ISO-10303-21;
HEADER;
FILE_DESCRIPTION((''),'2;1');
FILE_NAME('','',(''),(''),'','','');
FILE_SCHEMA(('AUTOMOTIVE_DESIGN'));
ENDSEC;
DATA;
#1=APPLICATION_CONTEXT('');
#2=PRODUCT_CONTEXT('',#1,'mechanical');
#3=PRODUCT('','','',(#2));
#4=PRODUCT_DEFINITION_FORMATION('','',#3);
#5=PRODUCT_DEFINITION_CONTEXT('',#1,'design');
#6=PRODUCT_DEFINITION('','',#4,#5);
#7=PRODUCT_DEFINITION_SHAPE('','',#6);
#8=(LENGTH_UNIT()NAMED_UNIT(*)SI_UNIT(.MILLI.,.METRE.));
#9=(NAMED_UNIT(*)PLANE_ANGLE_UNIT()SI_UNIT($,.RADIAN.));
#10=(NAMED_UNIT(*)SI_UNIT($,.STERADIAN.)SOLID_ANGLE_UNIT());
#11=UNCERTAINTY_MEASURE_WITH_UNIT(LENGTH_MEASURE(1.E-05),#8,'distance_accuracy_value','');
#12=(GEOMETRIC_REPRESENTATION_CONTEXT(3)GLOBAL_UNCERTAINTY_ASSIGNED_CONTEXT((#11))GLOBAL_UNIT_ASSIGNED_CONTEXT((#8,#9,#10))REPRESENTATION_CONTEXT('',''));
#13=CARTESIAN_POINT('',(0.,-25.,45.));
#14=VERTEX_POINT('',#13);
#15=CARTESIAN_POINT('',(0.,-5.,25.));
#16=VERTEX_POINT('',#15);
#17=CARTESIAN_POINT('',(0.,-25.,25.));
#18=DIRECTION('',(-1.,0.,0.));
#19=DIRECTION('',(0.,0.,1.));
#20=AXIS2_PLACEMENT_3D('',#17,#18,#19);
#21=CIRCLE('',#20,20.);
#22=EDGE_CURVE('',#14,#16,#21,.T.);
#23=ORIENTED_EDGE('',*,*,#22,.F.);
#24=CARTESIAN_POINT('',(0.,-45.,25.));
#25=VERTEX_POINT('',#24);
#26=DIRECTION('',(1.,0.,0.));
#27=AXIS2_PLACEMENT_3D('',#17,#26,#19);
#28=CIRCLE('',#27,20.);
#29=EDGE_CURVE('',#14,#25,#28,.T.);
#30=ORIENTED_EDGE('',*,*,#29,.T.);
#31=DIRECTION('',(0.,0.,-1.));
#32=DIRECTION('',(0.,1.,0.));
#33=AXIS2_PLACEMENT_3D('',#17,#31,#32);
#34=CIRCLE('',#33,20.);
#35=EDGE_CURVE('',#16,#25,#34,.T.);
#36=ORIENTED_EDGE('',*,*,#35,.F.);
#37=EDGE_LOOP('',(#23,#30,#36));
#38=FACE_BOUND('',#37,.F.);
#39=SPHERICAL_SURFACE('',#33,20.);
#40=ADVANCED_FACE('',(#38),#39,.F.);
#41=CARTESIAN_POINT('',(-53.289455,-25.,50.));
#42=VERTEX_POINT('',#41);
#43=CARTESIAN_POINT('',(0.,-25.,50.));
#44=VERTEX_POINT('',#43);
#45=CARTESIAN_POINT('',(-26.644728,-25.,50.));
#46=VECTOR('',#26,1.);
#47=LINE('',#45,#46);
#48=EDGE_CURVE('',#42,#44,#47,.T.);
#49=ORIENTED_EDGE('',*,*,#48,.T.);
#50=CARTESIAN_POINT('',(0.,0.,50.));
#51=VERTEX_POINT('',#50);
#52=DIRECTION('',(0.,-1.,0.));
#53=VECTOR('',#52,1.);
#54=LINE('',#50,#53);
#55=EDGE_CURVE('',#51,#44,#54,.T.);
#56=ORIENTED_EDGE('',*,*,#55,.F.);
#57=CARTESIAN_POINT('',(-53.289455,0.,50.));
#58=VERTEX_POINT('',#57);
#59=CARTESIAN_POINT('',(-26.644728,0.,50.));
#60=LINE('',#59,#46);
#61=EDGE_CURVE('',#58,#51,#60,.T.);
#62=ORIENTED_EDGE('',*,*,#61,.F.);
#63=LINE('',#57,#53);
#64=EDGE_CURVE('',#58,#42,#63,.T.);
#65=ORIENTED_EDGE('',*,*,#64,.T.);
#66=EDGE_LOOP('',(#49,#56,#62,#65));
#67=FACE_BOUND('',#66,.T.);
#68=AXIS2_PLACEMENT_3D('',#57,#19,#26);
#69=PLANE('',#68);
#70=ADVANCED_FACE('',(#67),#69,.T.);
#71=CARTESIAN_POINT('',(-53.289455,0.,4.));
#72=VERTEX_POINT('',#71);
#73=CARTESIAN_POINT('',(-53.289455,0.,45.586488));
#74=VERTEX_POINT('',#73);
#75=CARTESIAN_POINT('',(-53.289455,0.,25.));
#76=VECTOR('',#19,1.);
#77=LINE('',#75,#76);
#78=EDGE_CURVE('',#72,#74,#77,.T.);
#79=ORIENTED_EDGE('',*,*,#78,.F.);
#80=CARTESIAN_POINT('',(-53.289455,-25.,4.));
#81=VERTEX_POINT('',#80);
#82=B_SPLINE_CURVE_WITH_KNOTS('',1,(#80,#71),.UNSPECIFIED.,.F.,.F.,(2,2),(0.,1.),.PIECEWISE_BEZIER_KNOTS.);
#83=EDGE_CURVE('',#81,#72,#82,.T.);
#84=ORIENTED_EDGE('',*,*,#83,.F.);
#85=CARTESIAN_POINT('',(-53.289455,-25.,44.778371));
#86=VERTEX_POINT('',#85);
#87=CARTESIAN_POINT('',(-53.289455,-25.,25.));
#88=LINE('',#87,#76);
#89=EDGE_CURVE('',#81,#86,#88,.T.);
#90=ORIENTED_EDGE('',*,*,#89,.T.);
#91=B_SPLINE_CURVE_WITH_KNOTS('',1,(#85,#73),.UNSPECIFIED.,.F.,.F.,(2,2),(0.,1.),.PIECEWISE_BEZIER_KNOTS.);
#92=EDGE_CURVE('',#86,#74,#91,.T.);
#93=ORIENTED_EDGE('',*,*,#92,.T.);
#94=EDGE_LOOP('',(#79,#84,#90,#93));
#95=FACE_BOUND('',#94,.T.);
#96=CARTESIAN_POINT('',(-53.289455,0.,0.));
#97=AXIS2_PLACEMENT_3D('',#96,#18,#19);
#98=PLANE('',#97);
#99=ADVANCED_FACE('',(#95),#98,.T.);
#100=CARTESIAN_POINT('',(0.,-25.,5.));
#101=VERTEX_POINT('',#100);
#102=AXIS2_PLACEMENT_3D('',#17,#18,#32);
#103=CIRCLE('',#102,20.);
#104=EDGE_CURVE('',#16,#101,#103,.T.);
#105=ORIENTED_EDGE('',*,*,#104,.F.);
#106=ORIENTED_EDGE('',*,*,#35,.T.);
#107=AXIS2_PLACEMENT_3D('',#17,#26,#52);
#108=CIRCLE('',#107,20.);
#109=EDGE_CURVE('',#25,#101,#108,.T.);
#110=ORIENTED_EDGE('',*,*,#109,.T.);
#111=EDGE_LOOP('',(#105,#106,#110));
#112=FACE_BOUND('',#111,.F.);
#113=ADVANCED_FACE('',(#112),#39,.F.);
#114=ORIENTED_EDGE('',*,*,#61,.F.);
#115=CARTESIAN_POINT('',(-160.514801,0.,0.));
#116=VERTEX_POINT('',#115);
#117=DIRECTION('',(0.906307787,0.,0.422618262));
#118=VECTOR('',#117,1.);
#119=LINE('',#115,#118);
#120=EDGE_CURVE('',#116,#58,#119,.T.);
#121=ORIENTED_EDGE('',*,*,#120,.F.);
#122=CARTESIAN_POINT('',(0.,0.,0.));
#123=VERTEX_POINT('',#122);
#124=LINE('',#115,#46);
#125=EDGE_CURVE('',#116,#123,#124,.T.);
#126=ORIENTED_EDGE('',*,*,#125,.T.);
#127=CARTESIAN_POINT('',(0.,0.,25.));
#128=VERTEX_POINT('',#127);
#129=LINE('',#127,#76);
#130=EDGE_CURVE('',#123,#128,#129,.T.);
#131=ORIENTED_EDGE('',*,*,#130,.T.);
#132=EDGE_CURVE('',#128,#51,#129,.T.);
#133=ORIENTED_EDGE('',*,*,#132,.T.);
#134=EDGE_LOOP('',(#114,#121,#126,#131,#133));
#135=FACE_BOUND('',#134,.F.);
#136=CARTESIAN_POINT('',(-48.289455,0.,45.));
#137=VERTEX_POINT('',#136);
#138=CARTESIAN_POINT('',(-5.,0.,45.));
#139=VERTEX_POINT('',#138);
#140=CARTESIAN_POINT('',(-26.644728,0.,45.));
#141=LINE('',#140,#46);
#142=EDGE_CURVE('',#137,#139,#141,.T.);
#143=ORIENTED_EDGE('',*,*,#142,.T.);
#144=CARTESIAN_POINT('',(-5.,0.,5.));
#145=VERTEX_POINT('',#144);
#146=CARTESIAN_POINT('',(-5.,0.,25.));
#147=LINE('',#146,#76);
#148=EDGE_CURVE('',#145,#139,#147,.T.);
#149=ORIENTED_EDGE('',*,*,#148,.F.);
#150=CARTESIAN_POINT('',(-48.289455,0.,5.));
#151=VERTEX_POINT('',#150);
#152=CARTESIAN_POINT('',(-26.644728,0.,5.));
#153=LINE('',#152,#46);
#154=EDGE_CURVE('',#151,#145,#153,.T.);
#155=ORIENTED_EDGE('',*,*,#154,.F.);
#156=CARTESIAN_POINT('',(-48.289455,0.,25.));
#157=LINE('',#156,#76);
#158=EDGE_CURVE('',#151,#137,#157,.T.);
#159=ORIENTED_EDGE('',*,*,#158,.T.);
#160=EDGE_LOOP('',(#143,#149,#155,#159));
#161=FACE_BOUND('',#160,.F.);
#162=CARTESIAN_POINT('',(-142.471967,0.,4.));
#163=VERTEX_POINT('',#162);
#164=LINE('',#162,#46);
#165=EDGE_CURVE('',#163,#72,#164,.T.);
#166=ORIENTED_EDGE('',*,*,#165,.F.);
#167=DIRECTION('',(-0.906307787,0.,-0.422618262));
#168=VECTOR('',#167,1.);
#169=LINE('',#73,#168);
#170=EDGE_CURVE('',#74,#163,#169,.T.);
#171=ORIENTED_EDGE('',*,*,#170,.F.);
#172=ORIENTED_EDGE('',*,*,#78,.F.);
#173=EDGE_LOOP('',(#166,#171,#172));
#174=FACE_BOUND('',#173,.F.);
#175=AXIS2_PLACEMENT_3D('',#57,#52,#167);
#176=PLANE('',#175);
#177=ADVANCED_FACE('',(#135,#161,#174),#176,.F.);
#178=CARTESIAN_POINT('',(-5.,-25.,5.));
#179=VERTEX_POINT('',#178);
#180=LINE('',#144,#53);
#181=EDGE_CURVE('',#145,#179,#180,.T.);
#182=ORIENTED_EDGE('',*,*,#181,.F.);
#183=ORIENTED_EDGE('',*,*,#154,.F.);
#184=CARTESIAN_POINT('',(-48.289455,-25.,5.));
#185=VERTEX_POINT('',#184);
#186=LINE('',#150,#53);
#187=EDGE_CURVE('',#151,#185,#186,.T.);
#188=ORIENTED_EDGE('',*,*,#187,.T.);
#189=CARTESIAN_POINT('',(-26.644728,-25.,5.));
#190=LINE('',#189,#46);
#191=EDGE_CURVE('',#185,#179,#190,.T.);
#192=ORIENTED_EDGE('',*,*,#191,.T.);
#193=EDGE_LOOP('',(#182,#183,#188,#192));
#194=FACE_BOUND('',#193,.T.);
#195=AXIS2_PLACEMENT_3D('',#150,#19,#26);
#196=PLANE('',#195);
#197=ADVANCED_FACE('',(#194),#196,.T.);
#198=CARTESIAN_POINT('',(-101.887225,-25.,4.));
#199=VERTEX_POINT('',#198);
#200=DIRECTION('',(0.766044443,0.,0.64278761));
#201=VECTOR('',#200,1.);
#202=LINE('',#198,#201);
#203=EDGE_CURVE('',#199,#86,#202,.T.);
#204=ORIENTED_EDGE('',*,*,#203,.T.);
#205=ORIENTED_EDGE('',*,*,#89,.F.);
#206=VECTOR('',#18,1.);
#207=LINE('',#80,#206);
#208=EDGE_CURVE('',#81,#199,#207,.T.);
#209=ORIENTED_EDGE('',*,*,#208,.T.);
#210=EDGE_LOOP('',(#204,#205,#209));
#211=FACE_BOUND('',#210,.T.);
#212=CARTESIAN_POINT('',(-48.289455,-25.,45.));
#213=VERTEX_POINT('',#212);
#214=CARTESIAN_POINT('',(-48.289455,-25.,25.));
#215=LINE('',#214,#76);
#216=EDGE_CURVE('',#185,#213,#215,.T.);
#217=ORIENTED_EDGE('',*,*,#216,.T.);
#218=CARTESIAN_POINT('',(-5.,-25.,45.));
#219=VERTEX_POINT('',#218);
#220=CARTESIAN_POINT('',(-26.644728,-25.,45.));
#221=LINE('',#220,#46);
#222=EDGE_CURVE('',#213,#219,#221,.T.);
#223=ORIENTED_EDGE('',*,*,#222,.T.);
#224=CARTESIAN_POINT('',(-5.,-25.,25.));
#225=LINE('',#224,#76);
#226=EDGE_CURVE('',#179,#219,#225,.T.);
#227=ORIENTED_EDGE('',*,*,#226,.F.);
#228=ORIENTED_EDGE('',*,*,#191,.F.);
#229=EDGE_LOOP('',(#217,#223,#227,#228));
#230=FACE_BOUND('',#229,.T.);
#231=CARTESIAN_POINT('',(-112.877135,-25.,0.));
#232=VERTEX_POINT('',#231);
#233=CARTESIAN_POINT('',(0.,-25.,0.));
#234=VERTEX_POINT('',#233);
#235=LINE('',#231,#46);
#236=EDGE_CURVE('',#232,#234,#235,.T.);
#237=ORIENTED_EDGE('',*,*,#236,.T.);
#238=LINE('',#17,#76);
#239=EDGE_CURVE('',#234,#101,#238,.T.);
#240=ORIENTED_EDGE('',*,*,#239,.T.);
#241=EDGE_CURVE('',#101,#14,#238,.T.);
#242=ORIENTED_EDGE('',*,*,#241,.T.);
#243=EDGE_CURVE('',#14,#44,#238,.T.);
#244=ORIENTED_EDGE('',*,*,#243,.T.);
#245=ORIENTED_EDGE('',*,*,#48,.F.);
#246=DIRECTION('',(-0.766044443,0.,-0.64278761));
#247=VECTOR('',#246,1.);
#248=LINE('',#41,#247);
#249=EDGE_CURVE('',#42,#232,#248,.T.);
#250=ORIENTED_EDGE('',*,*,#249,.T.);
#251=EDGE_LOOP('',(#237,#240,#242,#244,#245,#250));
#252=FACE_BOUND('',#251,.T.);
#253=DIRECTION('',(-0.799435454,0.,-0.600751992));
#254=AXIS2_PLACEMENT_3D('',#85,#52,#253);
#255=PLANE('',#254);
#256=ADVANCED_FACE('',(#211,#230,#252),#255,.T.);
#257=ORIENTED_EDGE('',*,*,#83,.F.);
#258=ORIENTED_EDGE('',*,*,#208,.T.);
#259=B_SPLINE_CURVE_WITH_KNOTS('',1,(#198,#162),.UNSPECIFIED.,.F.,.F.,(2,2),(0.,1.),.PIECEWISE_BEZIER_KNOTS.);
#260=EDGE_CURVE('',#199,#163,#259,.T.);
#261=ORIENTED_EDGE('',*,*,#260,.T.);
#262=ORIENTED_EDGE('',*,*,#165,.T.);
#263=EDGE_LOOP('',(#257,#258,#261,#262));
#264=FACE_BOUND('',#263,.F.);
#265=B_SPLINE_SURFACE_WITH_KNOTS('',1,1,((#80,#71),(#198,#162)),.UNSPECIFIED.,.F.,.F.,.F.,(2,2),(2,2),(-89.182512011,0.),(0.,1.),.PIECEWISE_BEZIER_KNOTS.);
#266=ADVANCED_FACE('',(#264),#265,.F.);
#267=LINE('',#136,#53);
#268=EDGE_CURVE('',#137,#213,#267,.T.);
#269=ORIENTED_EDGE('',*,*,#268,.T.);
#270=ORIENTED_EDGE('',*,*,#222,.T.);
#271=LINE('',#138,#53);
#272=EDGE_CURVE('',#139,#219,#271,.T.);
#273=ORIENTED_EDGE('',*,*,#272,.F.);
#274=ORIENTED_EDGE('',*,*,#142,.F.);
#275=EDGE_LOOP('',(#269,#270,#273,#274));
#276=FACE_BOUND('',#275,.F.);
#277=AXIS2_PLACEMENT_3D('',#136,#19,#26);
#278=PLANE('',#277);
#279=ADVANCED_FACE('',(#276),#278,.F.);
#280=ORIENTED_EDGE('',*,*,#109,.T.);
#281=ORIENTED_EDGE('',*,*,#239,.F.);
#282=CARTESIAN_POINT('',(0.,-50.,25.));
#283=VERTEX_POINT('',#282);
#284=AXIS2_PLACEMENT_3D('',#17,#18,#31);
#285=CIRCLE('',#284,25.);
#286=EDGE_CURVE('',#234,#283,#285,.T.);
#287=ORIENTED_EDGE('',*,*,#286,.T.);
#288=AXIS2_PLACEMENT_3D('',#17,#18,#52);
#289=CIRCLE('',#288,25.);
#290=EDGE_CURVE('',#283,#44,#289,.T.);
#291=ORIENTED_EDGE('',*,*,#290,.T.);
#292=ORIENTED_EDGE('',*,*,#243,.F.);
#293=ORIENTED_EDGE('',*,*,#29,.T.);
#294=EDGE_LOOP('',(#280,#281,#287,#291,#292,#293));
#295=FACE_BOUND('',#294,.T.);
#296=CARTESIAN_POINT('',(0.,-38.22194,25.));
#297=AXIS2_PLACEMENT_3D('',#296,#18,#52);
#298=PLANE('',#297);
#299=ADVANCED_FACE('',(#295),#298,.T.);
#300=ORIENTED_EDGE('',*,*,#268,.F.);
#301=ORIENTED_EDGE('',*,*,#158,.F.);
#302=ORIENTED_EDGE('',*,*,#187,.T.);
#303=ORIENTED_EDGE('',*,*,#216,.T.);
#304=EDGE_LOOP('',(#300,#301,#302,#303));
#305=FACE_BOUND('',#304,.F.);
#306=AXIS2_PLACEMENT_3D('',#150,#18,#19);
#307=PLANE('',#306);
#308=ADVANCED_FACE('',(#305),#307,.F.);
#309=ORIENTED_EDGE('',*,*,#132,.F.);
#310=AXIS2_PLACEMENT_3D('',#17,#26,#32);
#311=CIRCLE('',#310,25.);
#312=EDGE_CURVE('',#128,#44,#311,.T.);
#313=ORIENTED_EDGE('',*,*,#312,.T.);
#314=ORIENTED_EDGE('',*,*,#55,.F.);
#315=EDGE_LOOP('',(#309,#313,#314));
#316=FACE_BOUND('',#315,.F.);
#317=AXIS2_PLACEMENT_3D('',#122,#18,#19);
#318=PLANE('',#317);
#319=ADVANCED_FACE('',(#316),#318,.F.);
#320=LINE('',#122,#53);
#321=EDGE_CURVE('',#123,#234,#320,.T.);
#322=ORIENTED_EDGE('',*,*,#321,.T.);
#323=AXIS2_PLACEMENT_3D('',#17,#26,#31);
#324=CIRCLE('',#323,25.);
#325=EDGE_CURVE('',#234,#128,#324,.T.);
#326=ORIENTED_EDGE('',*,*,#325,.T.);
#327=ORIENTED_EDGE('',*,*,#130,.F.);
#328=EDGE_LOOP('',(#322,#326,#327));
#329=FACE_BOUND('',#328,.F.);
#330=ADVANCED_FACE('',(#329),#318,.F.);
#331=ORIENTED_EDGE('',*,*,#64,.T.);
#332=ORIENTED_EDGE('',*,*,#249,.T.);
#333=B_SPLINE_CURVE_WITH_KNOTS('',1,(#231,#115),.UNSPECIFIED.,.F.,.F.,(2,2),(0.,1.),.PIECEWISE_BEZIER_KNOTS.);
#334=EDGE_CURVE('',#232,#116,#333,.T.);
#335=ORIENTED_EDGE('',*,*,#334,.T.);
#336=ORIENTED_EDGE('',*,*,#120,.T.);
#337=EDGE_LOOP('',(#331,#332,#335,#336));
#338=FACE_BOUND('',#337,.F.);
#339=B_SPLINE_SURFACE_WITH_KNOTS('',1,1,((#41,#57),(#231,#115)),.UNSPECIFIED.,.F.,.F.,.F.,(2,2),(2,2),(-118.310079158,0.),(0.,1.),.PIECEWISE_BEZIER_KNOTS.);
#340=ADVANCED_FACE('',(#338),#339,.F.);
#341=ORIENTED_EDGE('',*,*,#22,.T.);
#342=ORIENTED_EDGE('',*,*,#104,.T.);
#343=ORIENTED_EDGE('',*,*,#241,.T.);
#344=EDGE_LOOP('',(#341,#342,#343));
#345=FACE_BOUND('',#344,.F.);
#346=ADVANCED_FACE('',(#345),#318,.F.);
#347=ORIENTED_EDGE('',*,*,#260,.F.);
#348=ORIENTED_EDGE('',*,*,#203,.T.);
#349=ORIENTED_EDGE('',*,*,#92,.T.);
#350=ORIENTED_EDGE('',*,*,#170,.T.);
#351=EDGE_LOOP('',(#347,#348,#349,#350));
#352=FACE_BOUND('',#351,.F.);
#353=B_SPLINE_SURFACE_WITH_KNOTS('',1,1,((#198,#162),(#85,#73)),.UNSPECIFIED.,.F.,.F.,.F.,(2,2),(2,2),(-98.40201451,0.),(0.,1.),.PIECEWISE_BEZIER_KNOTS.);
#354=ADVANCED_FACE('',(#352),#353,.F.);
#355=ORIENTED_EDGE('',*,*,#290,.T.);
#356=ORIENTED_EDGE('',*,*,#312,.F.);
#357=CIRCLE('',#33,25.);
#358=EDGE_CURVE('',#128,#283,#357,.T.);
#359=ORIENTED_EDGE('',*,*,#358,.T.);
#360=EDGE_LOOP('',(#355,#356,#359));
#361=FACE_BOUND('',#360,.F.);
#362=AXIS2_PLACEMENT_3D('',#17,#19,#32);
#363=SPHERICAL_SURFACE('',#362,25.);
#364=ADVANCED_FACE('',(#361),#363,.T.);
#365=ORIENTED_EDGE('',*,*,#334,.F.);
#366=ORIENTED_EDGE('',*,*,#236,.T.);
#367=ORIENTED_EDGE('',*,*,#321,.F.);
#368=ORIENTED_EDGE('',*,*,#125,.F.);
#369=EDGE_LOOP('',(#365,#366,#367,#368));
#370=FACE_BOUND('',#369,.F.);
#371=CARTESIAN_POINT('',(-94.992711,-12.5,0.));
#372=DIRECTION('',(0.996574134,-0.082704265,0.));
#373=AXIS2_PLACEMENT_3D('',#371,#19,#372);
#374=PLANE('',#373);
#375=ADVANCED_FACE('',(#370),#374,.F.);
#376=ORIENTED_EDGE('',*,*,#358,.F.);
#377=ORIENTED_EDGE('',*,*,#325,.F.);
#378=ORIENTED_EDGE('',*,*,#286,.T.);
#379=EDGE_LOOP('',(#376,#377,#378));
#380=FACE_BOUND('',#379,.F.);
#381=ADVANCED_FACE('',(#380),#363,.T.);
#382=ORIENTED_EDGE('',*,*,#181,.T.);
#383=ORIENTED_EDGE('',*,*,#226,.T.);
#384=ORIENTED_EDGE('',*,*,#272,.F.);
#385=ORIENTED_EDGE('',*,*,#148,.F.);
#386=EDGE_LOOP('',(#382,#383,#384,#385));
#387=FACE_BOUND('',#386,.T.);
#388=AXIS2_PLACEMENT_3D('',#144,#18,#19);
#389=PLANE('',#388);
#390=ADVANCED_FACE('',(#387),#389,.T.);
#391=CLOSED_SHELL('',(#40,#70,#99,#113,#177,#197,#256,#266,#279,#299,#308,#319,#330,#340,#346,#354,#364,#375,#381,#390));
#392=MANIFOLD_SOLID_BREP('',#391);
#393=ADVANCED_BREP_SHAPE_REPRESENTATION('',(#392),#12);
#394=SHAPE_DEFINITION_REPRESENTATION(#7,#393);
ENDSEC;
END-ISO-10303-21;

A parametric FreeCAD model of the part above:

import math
import FreeCAD as App
import Part
import Sketcher
Q = App.Units.Quantity


def add_polygon(sketch, points):
    """Adds a closed chain of lines whose ends are joined by coincident constraints."""
    first, n = sketch.GeometryCount, len(points)
    for a, b in zip(points, points[1:] + points[:1]):
        sketch.addGeometry(Part.LineSegment(App.Vector(*a, 0), App.Vector(*b, 0)), False)
    for i in range(n):
        sketch.addConstraint(Sketcher.Constraint("Coincident", first + i, 2, first + (i + 1) % n, 1))

doc = App.newDocument("Part")
body = doc.addObject("PartDesign::Body", "Body")

# Sketch on XZ plane
sketch1 = doc.addObject("Sketcher::SketchObject", "Sketch")
body.addObject(sketch1)
sketch1.AttachmentSupport = (doc.XZ_Plane, [""])
sketch1.MapMode = "FlatFace"
add_polygon(sketch1, [(-53, 50), (-53, 0), (0, 0), (0, 50)])  # lines 0-3
add_polygon(sketch1, [(-5, 5), (-48, 5), (-48, 45), (-5, 45)])  # lines 4-7
sketch1.addConstraint(Sketcher.Constraint("Vertical", 0))
sketch1.addConstraint(Sketcher.Constraint("Horizontal", 1))
sketch1.addConstraint(Sketcher.Constraint("Vertical", 2))
sketch1.addConstraint(Sketcher.Constraint("Horizontal", 3))
sketch1.addConstraint(Sketcher.Constraint("Horizontal", 4))
sketch1.addConstraint(Sketcher.Constraint("Vertical", 5))
sketch1.addConstraint(Sketcher.Constraint("Horizontal", 6))
sketch1.addConstraint(Sketcher.Constraint("Vertical", 7))
sketch1.addConstraint(Sketcher.Constraint("Coincident", 1, 2, -1, 1))
sketch1.addConstraint(Sketcher.Constraint("DistanceY", 0, 2, 0, 1, 50.0))
sketch1.addConstraint(Sketcher.Constraint("DistanceY", 5, 1, 5, 2, 40.0))
sketch1.addConstraint(Sketcher.Constraint("DistanceY", -1, 1, 4, 2, 5.0))
sketch1.addConstraint(Sketcher.Constraint("DistanceX", 6, 2, -1, 1, 5.0))
sketch1.addConstraint(Sketcher.Constraint("DistanceX", 0, 2, 4, 2, 5.0))
sketch1.addConstraint(Sketcher.Constraint("DistanceX", 1, 1, 1, 2, 53.289455))
pad1 = doc.addObject("PartDesign::Pad", "Pad")
body.addObject(pad1)
pad1.Profile = sketch1
pad1.Length = 25

# Sketch on YZ plane
sketch2 = doc.addObject("Sketcher::SketchObject", "Sketch001")
body.addObject(sketch2)
sketch2.AttachmentSupport = (doc.YZ_Plane, [""])
sketch2.MapMode = "FlatFace"
sketch2.addGeometry(Part.ArcOfCircle(Part.Circle(App.Vector(-25, 25, 0), App.Vector(0, 0, 1), 25), math.radians(-90), math.radians(0)), False)
sketch2.addGeometry(Part.ArcOfCircle(Part.Circle(App.Vector(-25, 25, 0), App.Vector(0, 0, 1), 25), math.radians(0), math.radians(90)), False)
sketch2.addGeometry(Part.LineSegment(App.Vector(-25, 50, 0), App.Vector(-25, 45, 0)), False)
sketch2.addGeometry(Part.ArcOfCircle(Part.Circle(App.Vector(-25, 25, 0), App.Vector(0, 0, 1), 20), math.radians(0), math.radians(90)), False)
sketch2.addGeometry(Part.ArcOfCircle(Part.Circle(App.Vector(-25, 25, 0), App.Vector(0, 0, 1), 20), math.radians(-90), math.radians(0)), False)
sketch2.addGeometry(Part.LineSegment(App.Vector(-25, 5, 0), App.Vector(-25, 0, 0)), False)
sketch2.addGeometry(Part.LineSegment(App.Vector(-25, 50, 0), App.Vector(-25, 0, 0)), True)  # axis
sketch2.addConstraint(Sketcher.Constraint("Tangent", 0, 2, 1, 1))
sketch2.addConstraint(Sketcher.Constraint("Coincident", 1, 2, 2, 1))
sketch2.addConstraint(Sketcher.Constraint("Coincident", 2, 2, 3, 2))
sketch2.addConstraint(Sketcher.Constraint("Tangent", 3, 1, 4, 2))
sketch2.addConstraint(Sketcher.Constraint("Coincident", 4, 1, 5, 1))
sketch2.addConstraint(Sketcher.Constraint("Coincident", 5, 2, 0, 1))
sketch2.addConstraint(Sketcher.Constraint("Vertical", 2))
sketch2.addConstraint(Sketcher.Constraint("Vertical", 5))
sketch2.addConstraint(Sketcher.Constraint("Vertical", 6))
sketch2.addConstraint(Sketcher.Constraint("Coincident", 3, 3, 0, 3))
sketch2.addConstraint(Sketcher.Constraint("Coincident", 6, 1, 1, 2))
sketch2.addConstraint(Sketcher.Constraint("Coincident", 6, 2, 5, 2))
sketch2.addConstraint(Sketcher.Constraint("Equal", 0, 1))
sketch2.addConstraint(Sketcher.Constraint("Equal", 3, 4))
sketch2.addConstraint(Sketcher.Constraint("PointOnObject", 0, 2, -2))
sketch2.addConstraint(Sketcher.Constraint("PointOnObject", 5, 2, -1))
sketch2.addConstraint(Sketcher.Constraint("Horizontal", 4, 3, 0, 2))
sketch2.addConstraint(Sketcher.Constraint("Horizontal", 0, 2, 3, 1))
sketch2.addConstraint(Sketcher.Constraint("Vertical", 4, 3, 1, 2))
sketch2.addConstraint(Sketcher.Constraint("Radius", 0, 25.0))
sketch2.addConstraint(Sketcher.Constraint("Radius", 3, 20.0))
revolution = doc.addObject("PartDesign::Revolution", "Revolution")
body.addObject(revolution)
revolution.Profile = sketch2
revolution.ReferenceAxis = (sketch2, ["Axis0"])
revolution.Angle = 180

# Sketch on XZ plane
sketch3 = doc.addObject("Sketcher::SketchObject", "Sketch002")
body.addObject(sketch3)
sketch3.AttachmentSupport = (doc.XZ_Plane, [""])
sketch3.MapMode = "FlatFace"
sketch3.AttachmentOffset = App.Placement(App.Vector(0, 0, 25), App.Rotation())
add_polygon(sketch3, [(-53.3, 44.8), (-53.3, 50), (-112.9, 0), (-53.3, 0), (-53.3, 4), (-101.9, 4)])  # lines 0-5
sketch3.addConstraint(Sketcher.Constraint("Vertical", 0))
sketch3.addConstraint(Sketcher.Constraint("Horizontal", 2))
sketch3.addConstraint(Sketcher.Constraint("Vertical", 3))
sketch3.addConstraint(Sketcher.Constraint("Horizontal", 4))
sketch3.addConstraint(Sketcher.Constraint("PointOnObject", 1, 2, -1))
sketch3.addConstraint(Sketcher.Constraint("Parallel", 1, 5))
sketch3.addConstraint(Sketcher.Constraint("Vertical", 0, 2, 2, 2))
sketch3.addConstraint(Sketcher.Constraint("DistanceY", 3, 1, 3, 2, 4.0))
sketch3.addConstraint(Sketcher.Constraint("Angle", 1, Q("-140 deg")))
sketch3.addConstraint(Sketcher.Constraint("DistanceY", -1, 1, 0, 2, 50.0))
sketch3.addConstraint(Sketcher.Constraint("DistanceX", 4, 2, 4, 1, 48.59777))
sketch3.addConstraint(Sketcher.Constraint("DistanceX", 0, 2, -1, 1, 53.289455))

# Sketch on XZ plane
sketch4 = doc.addObject("Sketcher::SketchObject", "Sketch003")
body.addObject(sketch4)
sketch4.AttachmentSupport = (doc.XZ_Plane, [""])
sketch4.MapMode = "FlatFace"
add_polygon(sketch4, [(-160.5, 0), (-53.3, 50), (-53.3, 45.6), (-142.5, 4), (-53.3, 4), (-53.3, 0)])  # lines 0-5
sketch4.addConstraint(Sketcher.Constraint("Vertical", 1))
sketch4.addConstraint(Sketcher.Constraint("Horizontal", 3))
sketch4.addConstraint(Sketcher.Constraint("Vertical", 4))
sketch4.addConstraint(Sketcher.Constraint("Horizontal", 5))
sketch4.addConstraint(Sketcher.Constraint("PointOnObject", 4, 2, -1))
sketch4.addConstraint(Sketcher.Constraint("Parallel", 0, 2))
sketch4.addConstraint(Sketcher.Constraint("Vertical", 1, 2, 3, 2))
sketch4.addConstraint(Sketcher.Constraint("DistanceY", 4, 2, 4, 1, 4.0))
sketch4.addConstraint(Sketcher.Constraint("Angle", 0, Q("25 deg")))
sketch4.addConstraint(Sketcher.Constraint("DistanceY", -1, 1, 0, 2, 50.0))
sketch4.addConstraint(Sketcher.Constraint("DistanceY", 1, 2, 1, 1, 4.413512))
sketch4.addConstraint(Sketcher.Constraint("DistanceX", 5, 2, -1, 1, 160.514801))

additiveloft = doc.addObject("PartDesign::AdditiveLoft", "AdditiveLoft")
body.addObject(additiveloft)
additiveloft.Profile = sketch3
additiveloft.Sections = [sketch4]

doc.recompute()
